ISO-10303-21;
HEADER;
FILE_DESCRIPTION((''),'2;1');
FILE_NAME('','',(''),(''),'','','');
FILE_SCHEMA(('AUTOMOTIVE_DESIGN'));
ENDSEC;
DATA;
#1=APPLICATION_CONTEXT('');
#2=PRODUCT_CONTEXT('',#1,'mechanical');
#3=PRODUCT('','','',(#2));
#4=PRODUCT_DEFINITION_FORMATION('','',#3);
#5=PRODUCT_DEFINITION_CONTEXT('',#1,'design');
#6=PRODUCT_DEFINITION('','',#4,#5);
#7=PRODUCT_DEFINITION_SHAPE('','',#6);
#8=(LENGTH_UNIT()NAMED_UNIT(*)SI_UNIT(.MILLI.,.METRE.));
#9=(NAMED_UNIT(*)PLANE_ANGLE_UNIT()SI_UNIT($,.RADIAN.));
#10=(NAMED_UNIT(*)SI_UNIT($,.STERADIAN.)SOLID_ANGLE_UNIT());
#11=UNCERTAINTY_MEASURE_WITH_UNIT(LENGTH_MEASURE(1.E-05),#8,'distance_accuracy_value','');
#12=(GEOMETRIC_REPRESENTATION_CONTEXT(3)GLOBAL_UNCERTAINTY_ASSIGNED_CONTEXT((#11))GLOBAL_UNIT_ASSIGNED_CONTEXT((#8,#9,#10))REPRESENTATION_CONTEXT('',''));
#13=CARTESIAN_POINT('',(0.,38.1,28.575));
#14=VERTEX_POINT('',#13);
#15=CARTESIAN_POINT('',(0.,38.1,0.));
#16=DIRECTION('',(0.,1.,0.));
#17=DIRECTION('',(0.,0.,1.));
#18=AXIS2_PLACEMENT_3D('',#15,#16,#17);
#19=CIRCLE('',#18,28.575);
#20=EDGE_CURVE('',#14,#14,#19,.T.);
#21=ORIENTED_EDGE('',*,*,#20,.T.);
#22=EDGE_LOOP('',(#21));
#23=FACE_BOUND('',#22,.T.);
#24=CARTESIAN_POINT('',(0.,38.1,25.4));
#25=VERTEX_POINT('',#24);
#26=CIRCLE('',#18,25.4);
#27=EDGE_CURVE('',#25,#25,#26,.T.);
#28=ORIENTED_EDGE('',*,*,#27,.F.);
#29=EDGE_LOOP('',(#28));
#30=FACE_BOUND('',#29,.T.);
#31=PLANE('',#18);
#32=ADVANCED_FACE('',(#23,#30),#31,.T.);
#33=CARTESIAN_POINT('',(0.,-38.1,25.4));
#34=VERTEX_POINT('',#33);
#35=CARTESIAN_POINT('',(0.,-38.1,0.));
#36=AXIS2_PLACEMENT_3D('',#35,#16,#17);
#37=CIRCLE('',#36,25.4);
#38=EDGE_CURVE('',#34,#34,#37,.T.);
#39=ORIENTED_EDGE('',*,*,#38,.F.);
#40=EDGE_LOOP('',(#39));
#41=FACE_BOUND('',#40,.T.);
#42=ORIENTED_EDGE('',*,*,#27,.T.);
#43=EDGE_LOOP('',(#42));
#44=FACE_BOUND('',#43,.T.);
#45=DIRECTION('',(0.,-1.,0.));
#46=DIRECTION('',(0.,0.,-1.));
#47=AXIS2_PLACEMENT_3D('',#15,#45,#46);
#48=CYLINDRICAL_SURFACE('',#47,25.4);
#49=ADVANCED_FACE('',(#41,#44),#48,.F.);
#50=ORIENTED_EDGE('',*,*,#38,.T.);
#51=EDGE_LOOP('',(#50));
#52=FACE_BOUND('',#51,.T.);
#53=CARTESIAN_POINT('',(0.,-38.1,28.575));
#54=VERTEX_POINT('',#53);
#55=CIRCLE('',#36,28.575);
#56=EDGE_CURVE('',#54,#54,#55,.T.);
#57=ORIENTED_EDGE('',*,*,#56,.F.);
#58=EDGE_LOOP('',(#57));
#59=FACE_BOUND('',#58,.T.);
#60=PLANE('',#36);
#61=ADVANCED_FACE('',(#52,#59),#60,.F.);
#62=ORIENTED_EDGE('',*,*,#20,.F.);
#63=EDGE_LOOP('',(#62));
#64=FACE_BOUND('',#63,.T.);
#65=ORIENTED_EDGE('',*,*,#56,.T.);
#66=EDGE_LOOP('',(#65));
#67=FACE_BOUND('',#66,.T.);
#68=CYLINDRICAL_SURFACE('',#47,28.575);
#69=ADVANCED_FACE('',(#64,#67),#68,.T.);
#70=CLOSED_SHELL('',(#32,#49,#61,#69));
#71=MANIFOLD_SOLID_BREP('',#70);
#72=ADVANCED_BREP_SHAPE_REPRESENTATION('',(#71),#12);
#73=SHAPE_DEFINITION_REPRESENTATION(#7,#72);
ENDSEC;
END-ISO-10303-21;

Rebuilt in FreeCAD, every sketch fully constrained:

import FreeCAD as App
import Part
import Sketcher
from FreeCAD import Vector
Q = App.Units.Quantity

doc = App.newDocument("Part")
params = doc.addObject("Spreadsheet::Sheet", "Params")
for row, (alias, value) in enumerate([
    ("sketch1_diameter", "2 in"),
    ("sketch1_diameter2", "2.25 in"),
    ("pad1_length", "3 in"),
], start=1):
    params.set(f"A{row}", alias)
    params.set(f"B{row}", "=" + value)
    params.setAlias(f"B{row}", alias)

body = doc.addObject("PartDesign::Body", "Body")

# Sketch on XZ plane
sketch1 = body.newObject("Sketcher::SketchObject", "Sketch")
sketch1.AttachmentSupport = (doc.getObject("XZ_Plane"), [""])
sketch1.MapMode = "FlatFace"
sketch1.addGeometry([
    Part.Circle(Vector(0, 0, 0), Vector(0, 0, 1), 29),
    Part.Circle(Vector(0, 0, 0), Vector(0, 0, 1), 25),
], False)
sketch1.addConstraint([
    Sketcher.Constraint("Coincident", 0, 3, -1, 1),
    Sketcher.Constraint("Coincident", 1, 3, -1, 1),
    Sketcher.Constraint("Diameter", 1, Q("2 in")),
    Sketcher.Constraint("Diameter", 0, Q("2.25 in")),
])
sketch1.setExpression("Constraints[2]", "Params.sketch1_diameter")
sketch1.setExpression("Constraints[3]", "Params.sketch1_diameter2")
pad1 = body.newObject("PartDesign::Pad", "Pad")
pad1.Profile = sketch1
pad1.setExpression("Length", "Params.pad1_length")
pad1.Midplane = True

doc.recompute()
